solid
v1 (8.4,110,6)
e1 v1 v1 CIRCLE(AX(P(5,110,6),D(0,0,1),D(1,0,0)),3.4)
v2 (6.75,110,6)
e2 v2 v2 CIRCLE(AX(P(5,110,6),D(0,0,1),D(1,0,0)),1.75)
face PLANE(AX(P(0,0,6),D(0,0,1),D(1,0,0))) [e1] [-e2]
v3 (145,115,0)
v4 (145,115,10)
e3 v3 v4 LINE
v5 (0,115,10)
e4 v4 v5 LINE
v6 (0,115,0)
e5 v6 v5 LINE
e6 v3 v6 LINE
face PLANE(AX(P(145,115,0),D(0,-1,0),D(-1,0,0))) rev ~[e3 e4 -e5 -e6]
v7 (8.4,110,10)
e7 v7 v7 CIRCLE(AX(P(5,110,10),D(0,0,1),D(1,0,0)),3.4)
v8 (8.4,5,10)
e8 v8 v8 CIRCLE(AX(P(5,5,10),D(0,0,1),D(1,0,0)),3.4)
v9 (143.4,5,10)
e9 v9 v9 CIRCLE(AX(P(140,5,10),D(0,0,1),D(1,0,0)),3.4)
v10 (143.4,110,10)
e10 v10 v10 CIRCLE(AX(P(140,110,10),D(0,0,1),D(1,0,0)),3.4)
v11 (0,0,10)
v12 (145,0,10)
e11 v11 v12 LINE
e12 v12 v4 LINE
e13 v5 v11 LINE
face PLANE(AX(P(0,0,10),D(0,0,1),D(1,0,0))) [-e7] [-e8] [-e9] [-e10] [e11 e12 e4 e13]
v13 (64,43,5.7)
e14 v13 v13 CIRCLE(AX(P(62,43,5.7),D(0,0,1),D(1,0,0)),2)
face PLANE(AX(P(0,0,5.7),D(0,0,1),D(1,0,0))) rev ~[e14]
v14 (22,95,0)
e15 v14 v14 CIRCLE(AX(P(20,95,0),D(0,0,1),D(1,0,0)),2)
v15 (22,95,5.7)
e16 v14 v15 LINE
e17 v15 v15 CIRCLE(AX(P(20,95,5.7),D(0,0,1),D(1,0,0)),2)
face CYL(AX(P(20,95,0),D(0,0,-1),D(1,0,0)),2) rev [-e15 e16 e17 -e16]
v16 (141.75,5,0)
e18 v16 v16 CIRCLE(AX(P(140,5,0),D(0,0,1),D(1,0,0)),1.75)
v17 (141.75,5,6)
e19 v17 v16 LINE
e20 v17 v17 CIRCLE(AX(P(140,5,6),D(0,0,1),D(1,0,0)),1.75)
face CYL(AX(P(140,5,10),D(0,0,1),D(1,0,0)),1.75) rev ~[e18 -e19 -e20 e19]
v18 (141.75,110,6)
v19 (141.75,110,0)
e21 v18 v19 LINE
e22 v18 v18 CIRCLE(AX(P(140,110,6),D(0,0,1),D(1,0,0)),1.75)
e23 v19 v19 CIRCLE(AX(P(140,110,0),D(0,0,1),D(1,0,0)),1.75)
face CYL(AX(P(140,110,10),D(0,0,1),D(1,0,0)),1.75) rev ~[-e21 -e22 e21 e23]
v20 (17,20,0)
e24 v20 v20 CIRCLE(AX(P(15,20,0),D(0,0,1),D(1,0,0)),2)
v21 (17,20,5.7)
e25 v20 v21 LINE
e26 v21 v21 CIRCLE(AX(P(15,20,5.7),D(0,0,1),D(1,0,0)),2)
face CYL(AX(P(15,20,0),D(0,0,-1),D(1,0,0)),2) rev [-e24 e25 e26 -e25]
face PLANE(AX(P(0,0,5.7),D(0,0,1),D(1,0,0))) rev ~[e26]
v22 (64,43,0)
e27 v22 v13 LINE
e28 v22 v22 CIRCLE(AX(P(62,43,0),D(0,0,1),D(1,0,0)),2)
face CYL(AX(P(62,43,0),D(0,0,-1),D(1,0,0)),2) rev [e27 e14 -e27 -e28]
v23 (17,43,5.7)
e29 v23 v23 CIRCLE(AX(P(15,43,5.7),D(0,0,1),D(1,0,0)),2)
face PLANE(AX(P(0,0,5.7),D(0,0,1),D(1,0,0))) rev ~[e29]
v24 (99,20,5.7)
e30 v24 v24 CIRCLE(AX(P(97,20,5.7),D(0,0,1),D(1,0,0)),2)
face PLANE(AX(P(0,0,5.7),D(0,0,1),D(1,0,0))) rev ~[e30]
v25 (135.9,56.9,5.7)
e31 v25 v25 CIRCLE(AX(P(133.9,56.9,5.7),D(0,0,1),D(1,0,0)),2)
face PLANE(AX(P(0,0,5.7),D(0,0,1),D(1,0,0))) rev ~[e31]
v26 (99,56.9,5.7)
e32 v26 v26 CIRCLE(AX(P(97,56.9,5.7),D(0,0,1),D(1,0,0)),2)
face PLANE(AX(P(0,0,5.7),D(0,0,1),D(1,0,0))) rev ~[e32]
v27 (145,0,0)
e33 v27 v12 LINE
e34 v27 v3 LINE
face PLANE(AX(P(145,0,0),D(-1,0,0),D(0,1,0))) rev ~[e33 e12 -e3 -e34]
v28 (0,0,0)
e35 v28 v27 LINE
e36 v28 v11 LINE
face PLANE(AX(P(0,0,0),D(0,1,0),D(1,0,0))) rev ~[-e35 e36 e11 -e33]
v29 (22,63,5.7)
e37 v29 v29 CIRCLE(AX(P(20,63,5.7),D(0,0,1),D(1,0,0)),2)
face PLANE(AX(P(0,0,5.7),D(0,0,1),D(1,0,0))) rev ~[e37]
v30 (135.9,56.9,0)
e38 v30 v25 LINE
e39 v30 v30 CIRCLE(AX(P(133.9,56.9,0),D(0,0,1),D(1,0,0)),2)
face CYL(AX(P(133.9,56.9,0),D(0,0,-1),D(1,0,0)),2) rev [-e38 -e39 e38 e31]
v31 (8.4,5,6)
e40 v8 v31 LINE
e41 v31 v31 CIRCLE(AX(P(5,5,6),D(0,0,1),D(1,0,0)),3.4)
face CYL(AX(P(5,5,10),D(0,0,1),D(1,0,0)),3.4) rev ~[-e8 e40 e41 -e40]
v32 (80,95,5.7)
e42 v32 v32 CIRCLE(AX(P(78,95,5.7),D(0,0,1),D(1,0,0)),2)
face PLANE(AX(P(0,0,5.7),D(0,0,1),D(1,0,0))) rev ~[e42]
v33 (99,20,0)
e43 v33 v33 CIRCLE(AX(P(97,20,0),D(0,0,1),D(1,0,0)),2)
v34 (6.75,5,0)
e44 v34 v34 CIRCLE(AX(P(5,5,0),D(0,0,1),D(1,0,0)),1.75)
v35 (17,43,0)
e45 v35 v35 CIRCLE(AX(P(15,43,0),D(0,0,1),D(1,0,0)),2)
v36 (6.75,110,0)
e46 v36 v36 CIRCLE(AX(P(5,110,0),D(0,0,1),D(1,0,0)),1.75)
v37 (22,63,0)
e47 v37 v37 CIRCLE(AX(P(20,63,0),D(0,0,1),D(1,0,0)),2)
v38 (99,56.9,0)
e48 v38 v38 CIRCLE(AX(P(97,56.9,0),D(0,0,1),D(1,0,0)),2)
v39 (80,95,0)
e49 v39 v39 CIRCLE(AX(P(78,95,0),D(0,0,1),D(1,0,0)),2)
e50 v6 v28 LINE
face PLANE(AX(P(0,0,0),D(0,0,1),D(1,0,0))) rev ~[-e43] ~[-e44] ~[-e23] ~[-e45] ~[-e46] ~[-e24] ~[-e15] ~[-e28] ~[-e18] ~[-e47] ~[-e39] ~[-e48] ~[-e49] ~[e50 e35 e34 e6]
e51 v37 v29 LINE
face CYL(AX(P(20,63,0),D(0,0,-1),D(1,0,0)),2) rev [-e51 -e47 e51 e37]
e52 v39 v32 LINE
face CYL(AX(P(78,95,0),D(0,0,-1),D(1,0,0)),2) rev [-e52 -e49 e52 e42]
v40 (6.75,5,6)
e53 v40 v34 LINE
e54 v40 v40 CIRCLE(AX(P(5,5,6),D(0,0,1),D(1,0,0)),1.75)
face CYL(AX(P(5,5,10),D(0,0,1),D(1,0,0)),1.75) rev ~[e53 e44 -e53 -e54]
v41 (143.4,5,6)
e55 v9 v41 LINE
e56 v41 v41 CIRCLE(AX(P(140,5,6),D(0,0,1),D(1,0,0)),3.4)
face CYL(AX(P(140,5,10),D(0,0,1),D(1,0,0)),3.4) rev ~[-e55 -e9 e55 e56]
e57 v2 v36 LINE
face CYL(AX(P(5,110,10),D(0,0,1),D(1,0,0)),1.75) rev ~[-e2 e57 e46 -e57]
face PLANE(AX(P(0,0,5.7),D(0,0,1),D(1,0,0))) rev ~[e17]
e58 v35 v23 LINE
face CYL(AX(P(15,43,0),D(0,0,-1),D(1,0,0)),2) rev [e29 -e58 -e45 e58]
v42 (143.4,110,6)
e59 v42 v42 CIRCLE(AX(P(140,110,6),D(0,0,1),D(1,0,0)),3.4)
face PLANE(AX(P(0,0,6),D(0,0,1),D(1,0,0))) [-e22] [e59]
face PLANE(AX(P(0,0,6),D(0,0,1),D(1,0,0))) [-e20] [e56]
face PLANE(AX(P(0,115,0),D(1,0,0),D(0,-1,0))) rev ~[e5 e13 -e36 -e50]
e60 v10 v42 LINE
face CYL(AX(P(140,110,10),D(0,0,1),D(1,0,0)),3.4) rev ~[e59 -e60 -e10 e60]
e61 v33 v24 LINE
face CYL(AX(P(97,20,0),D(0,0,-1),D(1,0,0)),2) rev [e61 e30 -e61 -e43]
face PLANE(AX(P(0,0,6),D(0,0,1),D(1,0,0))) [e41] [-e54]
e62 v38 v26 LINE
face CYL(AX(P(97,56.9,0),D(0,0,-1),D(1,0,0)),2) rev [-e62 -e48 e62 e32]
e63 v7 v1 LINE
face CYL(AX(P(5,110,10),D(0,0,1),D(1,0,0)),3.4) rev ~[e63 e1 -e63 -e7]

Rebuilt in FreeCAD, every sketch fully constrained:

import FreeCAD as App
import Part
import Sketcher

V = App.Vector
Q = App.Units.Quantity

doc = App.newDocument("Part")
body = doc.addObject("PartDesign::Body", "Body")

# Sketch on XY plane
sketch1 = body.newObject("Sketcher::SketchObject", "Sketch")
sketch1.AttachmentSupport = (doc.getObject("XY_Plane"), [""])
sketch1.MapMode = "FlatFace"
sketch1.addGeometry(Part.LineSegment(V(0, 115, 0), V(0, 0, 0)), False)
sketch1.addGeometry(Part.LineSegment(V(0, 0, 0), V(145, 0, 0)), False)
sketch1.addGeometry(Part.LineSegment(V(145, 0, 0), V(145, 115, 0)), False)
sketch1.addGeometry(Part.LineSegment(V(145, 115, 0), V(0, 115, 0)), False)
sketch1.addConstraint(Sketcher.Constraint("Coincident", 0, 2, 1, 1))
sketch1.addConstraint(Sketcher.Constraint("Coincident", 1, 2, 2, 1))
sketch1.addConstraint(Sketcher.Constraint("Coincident", 2, 2, 3, 1))
sketch1.addConstraint(Sketcher.Constraint("Coincident", 3, 2, 0, 1))
sketch1.addConstraint(Sketcher.Constraint("Vertical", 0))
sketch1.addConstraint(Sketcher.Constraint("Horizontal", 1))
sketch1.addConstraint(Sketcher.Constraint("Vertical", 2))
sketch1.addConstraint(Sketcher.Constraint("Horizontal", 3))
sketch1.addConstraint(Sketcher.Constraint("Coincident", 0, 2, -1, 1))
sketch1.addConstraint(Sketcher.Constraint("DistanceX", 1, 1, 1, 2, Q("145 mm")))
sketch1.addConstraint(Sketcher.Constraint("DistanceY", 0, 2, 0, 1, Q("115 mm")))
pad1 = body.newObject("PartDesign::Pad", "Pad")
pad1.Profile = sketch1
pad1.Length = 10

# Sketch on XY plane
sketch2 = body.newObject("Sketcher::SketchObject", "Sketch001")
sketch2.AttachmentSupport = (doc.getObject("XY_Plane"), [""])
sketch2.MapMode = "FlatFace"
sketch2.addGeometry(Part.Circle(V(15, 43, 0), V(0, 0, 1), 2), False)
sketch2.addGeometry(Part.Circle(V(62, 43, 0), V(0, 0, 1), 2), False)
sketch2.addGeometry(Part.Circle(V(15, 20, 0), V(0, 0, 1), 2), False)
sketch2.addGeometry(Part.Circle(V(20, 95, 0), V(0, 0, 1), 2), False)
sketch2.addGeometry(Part.Circle(V(78, 95, 0), V(0, 0, 1), 2), False)
sketch2.addGeometry(Part.Circle(V(20, 63, 0), V(0, 0, 1), 2), False)
sketch2.addGeometry(Part.Circle(V(97, 56.9, 0), V(0, 0, 1), 2), False)
sketch2.addGeometry(Part.Circle(V(133.9, 56.9, 0), V(0, 0, 1), 2), False)
sketch2.addGeometry(Part.Circle(V(97, 20, 0), V(0, 0, 1), 2), False)
sketch2.addConstraint(Sketcher.Constraint("Equal", 0, 1))
sketch2.addConstraint(Sketcher.Constraint("Equal", 1, 2))
sketch2.addConstraint(Sketcher.Constraint("Equal", 2, 3))
sketch2.addConstraint(Sketcher.Constraint("Equal", 3, 4))
sketch2.addConstraint(Sketcher.Constraint("Equal", 4, 5))
sketch2.addConstraint(Sketcher.Constraint("Equal", 5, 6))
sketch2.addConstraint(Sketcher.Constraint("Equal", 6, 7))
sketch2.addConstraint(Sketcher.Constraint("Equal", 7, 8))
sketch2.addConstraint(Sketcher.Constraint("Horizontal", 0, 3, 1, 3))
sketch2.addConstraint(Sketcher.Constraint("Horizontal", 3, 3, 4, 3))
sketch2.addConstraint(Sketcher.Constraint("Horizontal", 6, 3, 7, 3))
sketch2.addConstraint(Sketcher.Constraint("Horizontal", 2, 3, 8, 3))
sketch2.addConstraint(Sketcher.Constraint("Vertical", 0, 3, 2, 3))
sketch2.addConstraint(Sketcher.Constraint("Vertical", 3, 3, 5, 3))
sketch2.addConstraint(Sketcher.Constraint("Vertical", 6, 3, 8, 3))
sketch2.addConstraint(Sketcher.Constraint("Diameter", 0, Q("4 mm")))
sketch2.addConstraint(Sketcher.Constraint("DistanceX", -1, 1, 0, 3, Q("15 mm")))
sketch2.addConstraint(Sketcher.Constraint("DistanceY", -1, 1, 2, 3, Q("20 mm")))
sketch2.addConstraint(Sketcher.Constraint("DistanceX", -1, 1, 3, 3, Q("20 mm")))
sketch2.addConstraint(Sketcher.Constraint("DistanceX", 0, 3, 1, 3, Q("47 mm")))
sketch2.addConstraint(Sketcher.Constraint("DistanceY", 2, 3, 0, 3, Q("23 mm")))
sketch2.addConstraint(Sketcher.Constraint("DistanceX", 3, 3, 4, 3, Q("58 mm")))
sketch2.addConstraint(Sketcher.Constraint("DistanceY", 0, 3, 5, 3, Q("20 mm")))
sketch2.addConstraint(Sketcher.Constraint("DistanceY", 5, 3, 3, 3, Q("32 mm")))
sketch2.addConstraint(Sketcher.Constraint("DistanceX", 1, 3, 6, 3, Q("35 mm")))
sketch2.addConstraint(Sketcher.Constraint("DistanceX", 6, 3, 7, 3, Q("36.9 mm")))
sketch2.addConstraint(Sketcher.Constraint("DistanceY", 8, 3, 6, 3, Q("36.9 mm")))
pocket1 = body.newObject("PartDesign::Pocket", "Pocket")
pocket1.Profile = sketch2
pocket1.Length = 5.7
pocket1.Reversed = True

# Sketch on XY plane
sketch3 = body.newObject("Sketcher::SketchObject", "Sketch002")
sketch3.AttachmentSupport = (doc.getObject("XY_Plane"), [""])
sketch3.MapMode = "FlatFace"
sketch3.AttachmentOffset = App.Placement(V(0, 0, 10), App.Rotation())
sketch3.addGeometry(Part.Circle(V(5, 5, 0), V(0, 0, 1), 1.8), False)
sketch3.addGeometry(Part.Circle(V(5, 110, 0), V(0, 0, 1), 1.8), False)
sketch3.addGeometry(Part.Circle(V(140, 5, 0), V(0, 0, 1), 1.8), False)
sketch3.addGeometry(Part.Circle(V(140, 110, 0), V(0, 0, 1), 1.8), False)
sketch3.addConstraint(Sketcher.Constraint("Equal", 0, 1))
sketch3.addConstraint(Sketcher.Constraint("Equal", 1, 2))
sketch3.addConstraint(Sketcher.Constraint("Equal", 2, 3))
sketch3.addConstraint(Sketcher.Constraint("Horizontal", 0, 3, 2, 3))
sketch3.addConstraint(Sketcher.Constraint("Horizontal", 1, 3, 3, 3))
sketch3.addConstraint(Sketcher.Constraint("Vertical", 0, 3, 1, 3))
sketch3.addConstraint(Sketcher.Constraint("Vertical", 2, 3, 3, 3))
sketch3.addConstraint(Sketcher.Constraint("Diameter", 0, Q("3.5 mm")))
sketch3.addConstraint(Sketcher.Constraint("DistanceX", -1, 1, 0, 3, Q("5 mm")))
sketch3.addConstraint(Sketcher.Constraint("DistanceY", -1, 1, 0, 3, Q("5 mm")))
sketch3.addConstraint(Sketcher.Constraint("DistanceY", -1, 1, 1, 3, Q("110 mm")))
sketch3.addConstraint(Sketcher.Constraint("DistanceX", -1, 1, 2, 3, Q("140 mm")))
pocket2 = body.newObject("PartDesign::Pocket", "Pocket001")
pocket2.Profile = sketch3
pocket2.Type = "ThroughAll"

# Sketch on XY plane
sketch4 = body.newObject("Sketcher::SketchObject", "Sketch003")
sketch4.AttachmentSupport = (doc.getObject("XY_Plane"), [""])
sketch4.MapMode = "FlatFace"
sketch4.AttachmentOffset = App.Placement(V(0, 0, 10), App.Rotation())
sketch4.addGeometry(Part.Circle(V(5, 110, 0), V(0, 0, 1), 3.4), False)
sketch4.addGeometry(Part.Circle(V(5, 110, 0), V(0, 0, 1), 1.8), False)
sketch4.addGeometry(Part.Circle(V(5, 5, 0), V(0, 0, 1), 3.4), False)
sketch4.addGeometry(Part.Circle(V(5, 5, 0), V(0, 0, 1), 1.8), False)
sketch4.addGeometry(Part.Circle(V(140, 110, 0), V(0, 0, 1), 3.4), False)
sketch4.addGeometry(Part.Circle(V(140, 110, 0), V(0, 0, 1), 1.8), False)
sketch4.addGeometry(Part.Circle(V(140, 5, 0), V(0, 0, 1), 3.4), False)
sketch4.addGeometry(Part.Circle(V(140, 5, 0), V(0, 0, 1), 1.8), False)
sketch4.addConstraint(Sketcher.Constraint("Coincident", 1, 3, 0, 3))
sketch4.addConstraint(Sketcher.Constraint("Coincident", 3, 3, 2, 3))
sketch4.addConstraint(Sketcher.Constraint("Coincident", 5, 3, 4, 3))
sketch4.addConstraint(Sketcher.Constraint("Coincident", 7, 3, 6, 3))
sketch4.addConstraint(Sketcher.Constraint("Equal", 0, 2))
sketch4.addConstraint(Sketcher.Constraint("Equal", 1, 3))
sketch4.addConstraint(Sketcher.Constraint("Equal", 2, 4))
sketch4.addConstraint(Sketcher.Constraint("Equal", 3, 5))
sketch4.addConstraint(Sketcher.Constraint("Equal", 4, 6))
sketch4.addConstraint(Sketcher.Constraint("Equal", 5, 7))
sketch4.addConstraint(Sketcher.Constraint("Horizontal", 1, 3, 4, 3))
sketch4.addConstraint(Sketcher.Constraint("Horizontal", 3, 3, 6, 3))
sketch4.addConstraint(Sketcher.Constraint("Vertical", 1, 3, 2, 3))
sketch4.addConstraint(Sketcher.Constraint("Vertical", 5, 3, 6, 3))
sketch4.addConstraint(Sketcher.Constraint("Diameter", 0, Q("6.8 mm")))
sketch4.addConstraint(Sketcher.Constraint("Diameter", 1, Q("3.5 mm")))
sketch4.addConstraint(Sketcher.Constraint("DistanceX", -1, 1, 0, 3, Q("5 mm")))
sketch4.addConstraint(Sketcher.Constraint("DistanceY", -1, 1, 0, 3, Q("110 mm")))
sketch4.addConstraint(Sketcher.Constraint("DistanceY", -1, 1, 2, 3, Q("5 mm")))
sketch4.addConstraint(Sketcher.Constraint("DistanceX", -1, 1, 4, 3, Q("140 mm")))
pocket3 = body.newObject("PartDesign::Pocket", "Pocket002")
pocket3.Profile = sketch4
pocket3.Length = 4

doc.recompute()
